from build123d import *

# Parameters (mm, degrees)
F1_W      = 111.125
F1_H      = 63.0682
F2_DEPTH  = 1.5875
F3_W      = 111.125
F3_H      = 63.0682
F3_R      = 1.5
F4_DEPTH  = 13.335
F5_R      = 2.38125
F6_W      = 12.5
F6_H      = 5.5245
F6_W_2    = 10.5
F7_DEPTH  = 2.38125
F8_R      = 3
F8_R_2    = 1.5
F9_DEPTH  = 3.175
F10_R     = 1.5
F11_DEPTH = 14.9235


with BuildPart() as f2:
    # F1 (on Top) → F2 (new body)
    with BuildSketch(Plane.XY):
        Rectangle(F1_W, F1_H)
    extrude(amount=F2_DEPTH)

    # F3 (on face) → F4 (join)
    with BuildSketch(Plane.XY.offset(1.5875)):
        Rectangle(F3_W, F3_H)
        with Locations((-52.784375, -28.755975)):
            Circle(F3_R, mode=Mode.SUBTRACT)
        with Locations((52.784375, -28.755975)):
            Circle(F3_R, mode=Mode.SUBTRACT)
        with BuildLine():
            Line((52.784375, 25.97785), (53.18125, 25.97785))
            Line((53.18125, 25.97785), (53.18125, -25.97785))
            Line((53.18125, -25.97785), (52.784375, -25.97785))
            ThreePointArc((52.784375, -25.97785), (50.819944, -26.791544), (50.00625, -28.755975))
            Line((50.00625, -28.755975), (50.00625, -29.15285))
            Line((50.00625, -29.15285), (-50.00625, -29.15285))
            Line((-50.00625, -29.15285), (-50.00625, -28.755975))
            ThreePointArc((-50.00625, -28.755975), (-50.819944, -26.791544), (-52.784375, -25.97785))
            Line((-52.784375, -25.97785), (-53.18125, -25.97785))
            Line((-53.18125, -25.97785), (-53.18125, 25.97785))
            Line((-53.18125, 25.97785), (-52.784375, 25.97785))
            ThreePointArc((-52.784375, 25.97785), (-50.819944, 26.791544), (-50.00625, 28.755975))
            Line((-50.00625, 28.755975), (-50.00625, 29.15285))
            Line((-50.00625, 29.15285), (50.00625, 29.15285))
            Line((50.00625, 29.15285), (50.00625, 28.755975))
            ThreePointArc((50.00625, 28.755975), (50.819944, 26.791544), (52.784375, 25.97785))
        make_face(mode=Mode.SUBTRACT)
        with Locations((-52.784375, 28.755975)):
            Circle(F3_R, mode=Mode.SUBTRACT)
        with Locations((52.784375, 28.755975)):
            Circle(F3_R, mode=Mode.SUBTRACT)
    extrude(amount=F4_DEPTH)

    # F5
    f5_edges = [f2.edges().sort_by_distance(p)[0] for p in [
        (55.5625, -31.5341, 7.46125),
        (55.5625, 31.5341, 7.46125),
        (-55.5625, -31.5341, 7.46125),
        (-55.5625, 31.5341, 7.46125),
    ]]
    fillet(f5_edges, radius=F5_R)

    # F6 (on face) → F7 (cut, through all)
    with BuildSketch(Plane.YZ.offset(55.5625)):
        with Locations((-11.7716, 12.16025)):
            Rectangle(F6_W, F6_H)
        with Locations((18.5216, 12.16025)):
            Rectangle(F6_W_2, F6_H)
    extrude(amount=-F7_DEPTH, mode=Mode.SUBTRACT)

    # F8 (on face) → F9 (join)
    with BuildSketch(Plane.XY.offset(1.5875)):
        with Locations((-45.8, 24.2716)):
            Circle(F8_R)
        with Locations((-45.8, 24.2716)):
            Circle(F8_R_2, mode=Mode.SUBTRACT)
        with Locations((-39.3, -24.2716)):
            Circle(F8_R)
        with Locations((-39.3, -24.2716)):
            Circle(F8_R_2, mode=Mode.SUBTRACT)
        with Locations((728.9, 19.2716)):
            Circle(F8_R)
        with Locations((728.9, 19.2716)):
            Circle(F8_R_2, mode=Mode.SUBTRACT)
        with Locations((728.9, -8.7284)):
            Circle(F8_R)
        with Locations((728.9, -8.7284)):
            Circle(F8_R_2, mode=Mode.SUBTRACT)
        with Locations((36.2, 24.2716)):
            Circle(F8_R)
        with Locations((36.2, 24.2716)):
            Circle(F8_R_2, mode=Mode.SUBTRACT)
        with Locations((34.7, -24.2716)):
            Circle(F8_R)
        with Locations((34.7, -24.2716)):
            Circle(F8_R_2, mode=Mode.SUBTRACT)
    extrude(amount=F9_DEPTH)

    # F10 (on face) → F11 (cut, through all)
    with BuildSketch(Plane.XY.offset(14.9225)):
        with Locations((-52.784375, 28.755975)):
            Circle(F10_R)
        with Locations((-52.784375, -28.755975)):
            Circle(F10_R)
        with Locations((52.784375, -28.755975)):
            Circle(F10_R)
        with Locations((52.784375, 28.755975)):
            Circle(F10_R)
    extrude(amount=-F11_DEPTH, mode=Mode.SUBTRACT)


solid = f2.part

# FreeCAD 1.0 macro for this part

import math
import FreeCAD as App
import Part
import Sketcher
from FreeCAD import Vector
Q = App.Units.Quantity


def edges_at(feature, points):
    """Names of the edges that pass closest to the given points."""
    edges = feature.Shape.Edges
    near = lambda p: min(range(len(edges)), key=lambda i: edges[i].distToShape(Part.Vertex(*p))[0])
    return sorted({f"Edge{near(p) + 1}" for p in points})

doc = App.newDocument("Part")
params = doc.addObject("Spreadsheet::Sheet", "Params")
for row, (alias, value) in enumerate([
    ("sketch1_width", "4.375 in"),
    ("sketch1_height", "2.483 in"),
    ("pad1_length", "0.0625 in"),
    ("sketch2_radius", "0.109375 in"),
    ("sketch2_width", "4.375 in"),
    ("sketch2_width2", "0.015625 in"),
    ("sketch2_width3", "3.9375 in"),
    ("sketch2_height", "2.483 in"),
    ("pad2_length", "0.525 in"),
    ("fillet_radius", "0.09375 in"),
    ("pocket1_length", "0.09375 in"),
    ("pad3_length", "0.125 in"),
], start=1):
    params.set(f"A{row}", alias)
    params.set(f"B{row}", "=" + value)
    params.setAlias(f"B{row}", alias)

body = doc.addObject("PartDesign::Body", "Body")
body.AllowCompound = True

sketch1 = body.newObject("Sketcher::SketchObject", "Sketch")
sketch1.AttachmentSupport = (doc.getObject("XY_Plane"), [""])
sketch1.MapMode = "FlatFace"
sketch1.addGeometry(Part.LineSegment(Vector(-56, 32, 0), Vector(-56, -32, 0)), False)
sketch1.addGeometry(Part.LineSegment(Vector(-56, -32, 0), Vector(56, -32, 0)), False)
sketch1.addGeometry(Part.LineSegment(Vector(56, -32, 0), Vector(56, 32, 0)), False)
sketch1.addGeometry(Part.LineSegment(Vector(56, 32, 0), Vector(-56, 32, 0)), False)
sketch1.addConstraint(Sketcher.Constraint("Coincident", 0, 2, 1, 1))
sketch1.addConstraint(Sketcher.Constraint("Coincident", 1, 2, 2, 1))
sketch1.addConstraint(Sketcher.Constraint("Coincident", 2, 2, 3, 1))
sketch1.addConstraint(Sketcher.Constraint("Coincident", 3, 2, 0, 1))
sketch1.addConstraint(Sketcher.Constraint("Vertical", 0))
sketch1.addConstraint(Sketcher.Constraint("Horizontal", 1))
sketch1.addConstraint(Sketcher.Constraint("Vertical", 2))
sketch1.addConstraint(Sketcher.Constraint("Horizontal", 3))
sketch1.addConstraint(Sketcher.Constraint("Symmetric", 0, 2, 2, 2, -1, 1))
sketch1.addConstraint(Sketcher.Constraint("DistanceX", 1, 1, 1, 2, Q("4.375 in")))
sketch1.addConstraint(Sketcher.Constraint("DistanceY", 0, 2, 0, 1, Q("2.483 in")))
sketch1.setExpression("Constraints[9]", "Params.sketch1_width")
sketch1.setExpression("Constraints[10]", "Params.sketch1_height")
pad1 = body.newObject("PartDesign::Pad", "Pad")
pad1.Profile = sketch1
pad1.setExpression("Length", "Params.pad1_length")

sketch2 = body.newObject("Sketcher::SketchObject", "Sketch001")
sketch2.AttachmentSupport = (doc.getObject("XY_Plane"), [""])
sketch2.MapMode = "FlatFace"
sketch2.AttachmentOffset = App.Placement(Vector(0, 0, 0.0625 * 25.4), App.Rotation())
sketch2.addGeometry(Part.LineSegment(Vector(-55.56, 31.53, 0), Vector(-55.56, -31.53, 0)), False)
sketch2.addGeometry(Part.LineSegment(Vector(-55.56, -31.53, 0), Vector(55.56, -31.53, 0)), False)
sketch2.addGeometry(Part.LineSegment(Vector(55.56, -31.53, 0), Vector(55.56, 31.53, 0)), False)
sketch2.addGeometry(Part.LineSegment(Vector(55.56, 31.53, 0), Vector(-55.56, 31.53, 0)), False)
sketch2.addGeometry(Part.Circle(Vector(-52.78, -28.76, 0), Vector(0, 0, 1), 1.5), False)
sketch2.addGeometry(Part.Circle(Vector(52.78, -28.76, 0), Vector(0, 0, 1), 1.5), False)
sketch2.addGeometry(Part.Circle(Vector(-52.78, 28.76, 0), Vector(0, 0, 1), 1.5), False)
sketch2.addGeometry(Part.ArcOfCircle(Part.Circle(Vector(52.78, 28.76, 0), Vector(0, 0, 1), 2.78), math.radians(-180), math.radians(-90)), False)
sketch2.addGeometry(Part.LineSegment(Vector(52.78, 25.98, 0), Vector(53.18, 25.98, 0)), False)
sketch2.addGeometry(Part.LineSegment(Vector(53.18, 25.98, 0), Vector(53.18, -25.98, 0)), False)
sketch2.addGeometry(Part.LineSegment(Vector(53.18, -25.98, 0), Vector(52.78, -25.98, 0)), False)
sketch2.addGeometry(Part.ArcOfCircle(Part.Circle(Vector(52.78, -28.76, 0), Vector(0, 0, 1), 2.78), math.radians(90), math.radians(180)), False)
sketch2.addGeometry(Part.LineSegment(Vector(50.01, -28.76, 0), Vector(50.01, -29.15, 0)), False)
sketch2.addGeometry(Part.LineSegment(Vector(50.01, -29.15, 0), Vector(-50.01, -29.15, 0)), False)
sketch2.addGeometry(Part.LineSegment(Vector(-50.01, -29.15, 0), Vector(-50.01, -28.76, 0)), False)
sketch2.addGeometry(Part.ArcOfCircle(Part.Circle(Vector(-52.78, -28.76, 0), Vector(0, 0, 1), 2.78), math.radians(0), math.radians(90)), False)
sketch2.addGeometry(Part.LineSegment(Vector(-52.78, -25.98, 0), Vector(-53.18, -25.98, 0)), False)
sketch2.addGeometry(Part.LineSegment(Vector(-53.18, -25.98, 0), Vector(-53.18, 25.98, 0)), False)
sketch2.addGeometry(Part.LineSegment(Vector(-53.18, 25.98, 0), Vector(-52.78, 25.98, 0)), False)
sketch2.addGeometry(Part.ArcOfCircle(Part.Circle(Vector(-52.78, 28.76, 0), Vector(0, 0, 1), 2.78), math.radians(-90), math.radians(0)), False)
sketch2.addGeometry(Part.LineSegment(Vector(-50.01, 28.76, 0), Vector(-50.01, 29.15, 0)), False)
sketch2.addGeometry(Part.LineSegment(Vector(-50.01, 29.15, 0), Vector(50.01, 29.15, 0)), False)
sketch2.addGeometry(Part.LineSegment(Vector(50.01, 29.15, 0), Vector(50.01, 28.76, 0)), False)
sketch2.addGeometry(Part.Circle(Vector(52.78, 28.76, 0), Vector(0, 0, 1), 1.5), False)
sketch2.addConstraint(Sketcher.Constraint("Coincident", 0, 2, 1, 1))
sketch2.addConstraint(Sketcher.Constraint("Coincident", 1, 2, 2, 1))
sketch2.addConstraint(Sketcher.Constraint("Coincident", 2, 2, 3, 1))
sketch2.addConstraint(Sketcher.Constraint("Coincident", 3, 2, 0, 1))
sketch2.addConstraint(Sketcher.Constraint("Tangent", 7, 2, 8, 1))
sketch2.addConstraint(Sketcher.Constraint("Coincident", 8, 2, 9, 1))
sketch2.addConstraint(Sketcher.Constraint("Coincident", 9, 2, 10, 1))
sketch2.addConstraint(Sketcher.Constraint("Tangent", 10, 2, 11, 1))
sketch2.addConstraint(Sketcher.Constraint("Tangent", 11, 2, 12, 1))
sketch2.addConstraint(Sketcher.Constraint("Coincident", 12, 2, 13, 1))
sketch2.addConstraint(Sketcher.Constraint("Coincident", 13, 2, 14, 1))
sketch2.addConstraint(Sketcher.Constraint("Tangent", 14, 2, 15, 1))
sketch2.addConstraint(Sketcher.Constraint("Tangent", 15, 2, 16, 1))
sketch2.addConstraint(Sketcher.Constraint("Coincident", 16, 2, 17, 1))
sketch2.addConstraint(Sketcher.Constraint("Coincident", 17, 2, 18, 1))
sketch2.addConstraint(Sketcher.Constraint("Tangent", 18, 2, 19, 1))
sketch2.addConstraint(Sketcher.Constraint("Tangent", 19, 2, 20, 1))
sketch2.addConstraint(Sketcher.Constraint("Coincident", 20, 2, 21, 1))
sketch2.addConstraint(Sketcher.Constraint("Coincident", 21, 2, 22, 1))
sketch2.addConstraint(Sketcher.Constraint("Tangent", 22, 2, 7, 1))
sketch2.addConstraint(Sketcher.Constraint("Vertical", 0))
sketch2.addConstraint(Sketcher.Constraint("Horizontal", 1))
sketch2.addConstraint(Sketcher.Constraint("Vertical", 2))
sketch2.addConstraint(Sketcher.Constraint("Horizontal", 3))
sketch2.addConstraint(Sketcher.Constraint("Horizontal", 8))
sketch2.addConstraint(Sketcher.Constraint("Vertical", 9))
sketch2.addConstraint(Sketcher.Constraint("Horizontal", 10))
sketch2.addConstraint(Sketcher.Constraint("Vertical", 12))
sketch2.addConstraint(Sketcher.Constraint("Horizontal", 13))
sketch2.addConstraint(Sketcher.Constraint("Vertical", 14))
sketch2.addConstraint(Sketcher.Constraint("Horizontal", 16))
sketch2.addConstraint(Sketcher.Constraint("Vertical", 17))
sketch2.addConstraint(Sketcher.Constraint("Horizontal", 18))
sketch2.addConstraint(Sketcher.Constraint("Vertical", 20))
sketch2.addConstraint(Sketcher.Constraint("Horizontal", 21))
sketch2.addConstraint(Sketcher.Constraint("Vertical", 22))
sketch2.addConstraint(Sketcher.Constraint("Coincident", 11, 3, 5, 3))
sketch2.addConstraint(Sketcher.Constraint("Coincident", 15, 3, 4, 3))
sketch2.addConstraint(Sketcher.Constraint("Coincident", 19, 3, 6, 3))
sketch2.addConstraint(Sketcher.Constraint("Coincident", 23, 3, 7, 3))
sketch2.addConstraint(Sketcher.Constraint("Equal", 4, 5))
sketch2.addConstraint(Sketcher.Constraint("Equal", 5, 6))
sketch2.addConstraint(Sketcher.Constraint("Equal", 7, 11))
sketch2.addConstraint(Sketcher.Constraint("Equal", 11, 15))
sketch2.addConstraint(Sketcher.Constraint("Equal", 15, 19))
sketch2.addConstraint(Sketcher.Constraint("Equal", 6, 23))
sketch2.addConstraint(Sketcher.Constraint("Symmetric", 5, 3, 6, 3, -1, 1))
sketch2.addConstraint(Sketcher.Constraint("Symmetric", 4, 3, 7, 3, -1, 1))
sketch2.addConstraint(Sketcher.Constraint("Symmetric", 0, 2, 2, 2, -1, 1))
sketch2.addConstraint(Sketcher.Constraint("Symmetric", 4, 3, 5, 3, -2))
sketch2.addConstraint(Sketcher.Constraint("Equal", 10, 16))
sketch2.addConstraint(Sketcher.Constraint("Equal", 18, 12))
sketch2.addConstraint(Sketcher.Constraint("Equal", 14, 20))
sketch2.addConstraint(Sketcher.Constraint("Radius", 7, Q("0.109375 in")))
sketch2.addConstraint(Sketcher.Constraint("Diameter", 4, 3.0))
sketch2.addConstraint(Sketcher.Constraint("DistanceX", 1, 1, 1, 2, Q("4.375 in")))
sketch2.addConstraint(Sketcher.Constraint("DistanceX", 8, 1, 8, 2, Q("0.015625 in")))
sketch2.addConstraint(Sketcher.Constraint("DistanceX", 13, 2, 13, 1, Q("3.9375 in")))
sketch2.addConstraint(Sketcher.Constraint("DistanceY", 0, 2, 0, 1, Q("2.483 in")))
sketch2.addConstraint(Sketcher.Constraint("DistanceY", 9, 2, 9, 1, Q("2.0455 in")))
sketch2.setExpression("Constraints[53]", "Params.sketch2_radius")
sketch2.setExpression("Constraints[55]", "Params.sketch2_width")
sketch2.setExpression("Constraints[56]", "Params.sketch2_width2")
sketch2.setExpression("Constraints[57]", "Params.sketch2_width3")
sketch2.setExpression("Constraints[58]", "Params.sketch2_height")
pad2 = body.newObject("PartDesign::Pad", "Pad001")
pad2.Profile = sketch2
pad2.setExpression("Length", "Params.pad2_length")
doc.recompute()

fillet = body.newObject("PartDesign::Fillet", "Fillet")
fillet.Base = (pad2, edges_at(pad2, [
    (55.562, -31.534, 7.461),
    (55.562, 31.534, 7.461),
    (-55.562, -31.534, 7.461),
    (-55.562, 31.534, 7.461),
]))
fillet.setExpression("Radius", "Params.fillet_radius")

sketch3 = body.newObject("Sketcher::SketchObject", "Sketch002")
sketch3.AttachmentSupport = (doc.getObject("YZ_Plane"), [""])
sketch3.MapMode = "FlatFace"
sketch3.AttachmentOffset = App.Placement(Vector(0, 0, 2.1875 * 25.4), App.Rotation())
sketch3.addGeometry(Part.LineSegment(Vector(-18, 15, 0), Vector(-18, 9, 0)), False)
sketch3.addGeometry(Part.LineSegment(Vector(-18, 9, 0), Vector(-6, 9, 0)), False)
sketch3.addGeometry(Part.LineSegment(Vector(-6, 9, 0), Vector(-6, 15, 0)), False)
sketch3.addGeometry(Part.LineSegment(Vector(-6, 15, 0), Vector(-18, 15, 0)), False)
sketch3.addGeometry(Part.LineSegment(Vector(13, 15, 0), Vector(13, 9, 0)), False)
sketch3.addGeometry(Part.LineSegment(Vector(13, 9, 0), Vector(24, 9, 0)), False)
sketch3.addGeometry(Part.LineSegment(Vector(24, 9, 0), Vector(24, 15, 0)), False)
sketch3.addGeometry(Part.LineSegment(Vector(24, 15, 0), Vector(13, 15, 0)), False)
sketch3.addConstraint(Sketcher.Constraint("Coincident", 0, 2, 1, 1))
sketch3.addConstraint(Sketcher.Constraint("Coincident", 1, 2, 2, 1))
sketch3.addConstraint(Sketcher.Constraint("Coincident", 2, 2, 3, 1))
sketch3.addConstraint(Sketcher.Constraint("Coincident", 3, 2, 0, 1))
sketch3.addConstraint(Sketcher.Constraint("Coincident", 4, 2, 5, 1))
sketch3.addConstraint(Sketcher.Constraint("Coincident", 5, 2, 6, 1))
sketch3.addConstraint(Sketcher.Constraint("Coincident", 6, 2, 7, 1))
sketch3.addConstraint(Sketcher.Constraint("Coincident", 7, 2, 4, 1))
sketch3.addConstraint(Sketcher.Constraint("Vertical", 0))
sketch3.addConstraint(Sketcher.Constraint("Horizontal", 1))
sketch3.addConstraint(Sketcher.Constraint("Vertical", 2))
sketch3.addConstraint(Sketcher.Constraint("Horizontal", 3))
sketch3.addConstraint(Sketcher.Constraint("Vertical", 4))
sketch3.addConstraint(Sketcher.Constraint("Horizontal", 5))
sketch3.addConstraint(Sketcher.Constraint("Vertical", 6))
sketch3.addConstraint(Sketcher.Constraint("Horizontal", 7))
sketch3.addConstraint(Sketcher.Constraint("Horizontal", 1, 2, 4, 2))
sketch3.addConstraint(Sketcher.Constraint("Horizontal", 3, 2, 6, 2))
sketch3.addConstraint(Sketcher.Constraint("DistanceY", -1, 1, 0, 2, Q("0.37 in")))
sketch3.addConstraint(Sketcher.Constraint("DistanceY", 0, 2, 0, 1, Q("0.2175 in")))
sketch3.addConstraint(Sketcher.Constraint("DistanceX", 1, 1, 1, 2, 12.5))
sketch3.addConstraint(Sketcher.Constraint("DistanceX", 5, 1, 5, 2, 10.5))
sketch3.addConstraint(Sketcher.Constraint("DistanceX", 0, 2, -1, 1, 18.0216))
sketch3.addConstraint(Sketcher.Constraint("DistanceX", -1, 1, 4, 2, 13.2716))
pocket1 = body.newObject("PartDesign::Pocket", "Pocket")
pocket1.Profile = sketch3
pocket1.setExpression("Length", "Params.pocket1_length")

sketch4 = body.newObject("Sketcher::SketchObject", "Sketch003")
sketch4.AttachmentSupport = (doc.getObject("XY_Plane"), [""])
sketch4.MapMode = "FlatFace"
sketch4.AttachmentOffset = App.Placement(Vector(0, 0, 0.0625 * 25.4), App.Rotation())
sketch4.addGeometry(Part.Circle(Vector(-45.8, 24.3, 0), Vector(0, 0, 1), 3), False)
sketch4.addGeometry(Part.Circle(Vector(-45.8, 24.3, 0), Vector(0, 0, 1), 1.5), False)
sketch4.addGeometry(Part.Circle(Vector(-39.3, -24.3, 0), Vector(0, 0, 1), 3), False)
sketch4.addGeometry(Part.Circle(Vector(-39.3, -24.3, 0), Vector(0, 0, 1), 1.5), False)
sketch4.addGeometry(Part.Circle(Vector(728.9, 19.3, 0), Vector(0, 0, 1), 3), False)
sketch4.addGeometry(Part.Circle(Vector(728.9, 19.3, 0), Vector(0, 0, 1), 1.5), False)
sketch4.addGeometry(Part.Circle(Vector(728.9, -8.7, 0), Vector(0, 0, 1), 3), False)
sketch4.addGeometry(Part.Circle(Vector(728.9, -8.7, 0), Vector(0, 0, 1), 1.5), False)
sketch4.addGeometry(Part.Circle(Vector(36.2, 24.3, 0), Vector(0, 0, 1), 3), False)
sketch4.addGeometry(Part.Circle(Vector(36.2, 24.3, 0), Vector(0, 0, 1), 1.5), False)
sketch4.addGeometry(Part.Circle(Vector(34.7, -24.3, 0), Vector(0, 0, 1), 3), False)
sketch4.addGeometry(Part.Circle(Vector(34.7, -24.3, 0), Vector(0, 0, 1), 1.5), False)
sketch4.addConstraint(Sketcher.Constraint("Coincident", 1, 3, 0, 3))
sketch4.addConstraint(Sketcher.Constraint("Coincident", 3, 3, 2, 3))
sketch4.addConstraint(Sketcher.Constraint("Coincident", 5, 3, 4, 3))
sketch4.addConstraint(Sketcher.Constraint("Coincident", 7, 3, 6, 3))
sketch4.addConstraint(Sketcher.Constraint("Coincident", 9, 3, 8, 3))
sketch4.addConstraint(Sketcher.Constraint("Coincident", 11, 3, 10, 3))
sketch4.addConstraint(Sketcher.Constraint("Equal", 0, 2))
sketch4.addConstraint(Sketcher.Constraint("Equal", 1, 3))
sketch4.addConstraint(Sketcher.Constraint("Equal", 2, 4))
sketch4.addConstraint(Sketcher.Constraint("Equal", 3, 5))
sketch4.addConstraint(Sketcher.Constraint("Equal", 4, 6))
sketch4.addConstraint(Sketcher.Constraint("Equal", 5, 7))
sketch4.addConstraint(Sketcher.Constraint("Equal", 6, 8))
sketch4.addConstraint(Sketcher.Constraint("Equal", 7, 9))
sketch4.addConstraint(Sketcher.Constraint("Equal", 8, 10))
sketch4.addConstraint(Sketcher.Constraint("Equal", 9, 11))
sketch4.addConstraint(Sketcher.Constraint("Horizontal", 1, 3, 8, 3))
sketch4.addConstraint(Sketcher.Constraint("Horizontal", 3, 3, 10, 3))
sketch4.addConstraint(Sketcher.Constraint("Vertical", 5, 3, 6, 3))
sketch4.addConstraint(Sketcher.Constraint("DistanceX", 0, 3, 4, 3, Q("30.5 in")))
sketch4.addConstraint(Sketcher.Constraint("Diameter", 0, 6.0))
sketch4.addConstraint(Sketcher.Constraint("Diameter", 1, 3.0))
sketch4.addConstraint(Sketcher.Constraint("DistanceX", 0, 3, -1, 1, 45.8))
sketch4.addConstraint(Sketcher.Constraint("DistanceY", -1, 1, 0, 3, 24.2716))
sketch4.addConstraint(Sketcher.Constraint("DistanceX", 2, 3, -1, 1, 39.3))
sketch4.addConstraint(Sketcher.Constraint("DistanceY", 2, 3, -1, 1, 24.2716))
sketch4.addConstraint(Sketcher.Constraint("DistanceY", -1, 1, 4, 3, 19.2716))
sketch4.addConstraint(Sketcher.Constraint("DistanceY", 6, 3, -1, 1, 8.7284))
sketch4.addConstraint(Sketcher.Constraint("DistanceX", -1, 1, 8, 3, 36.2))
sketch4.addConstraint(Sketcher.Constraint("DistanceX", -1, 1, 10, 3, 34.7))
pad3 = body.newObject("PartDesign::Pad", "Pad002")
pad3.Profile = sketch4
pad3.setExpression("Length", "Params.pad3_length")

sketch5 = body.newObject("Sketcher::SketchObject", "Sketch004")
sketch5.AttachmentSupport = (doc.getObject("XY_Plane"), [""])
sketch5.MapMode = "FlatFace"
sketch5.AttachmentOffset = App.Placement(Vector(0, 0, 0.5875 * 25.4), App.Rotation())
sketch5.addGeometry(Part.Circle(Vector(-52.8, 28.8, 0), Vector(0, 0, 1), 1.5), False)
sketch5.addGeometry(Part.Circle(Vector(-52.8, -28.8, 0), Vector(0, 0, 1), 1.5), False)
sketch5.addGeometry(Part.Circle(Vector(52.8, -28.8, 0), Vector(0, 0, 1), 1.5), False)
sketch5.addGeometry(Part.Circle(Vector(52.8, 28.8, 0), Vector(0, 0, 1), 1.5), False)
sketch5.addConstraint(Sketcher.Constraint("Equal", 0, 1))
sketch5.addConstraint(Sketcher.Constraint("Equal", 1, 2))
sketch5.addConstraint(Sketcher.Constraint("Equal", 2, 3))
sketch5.addConstraint(Sketcher.Constraint("Symmetric", 0, 3, 2, 3, -1, 1))
sketch5.addConstraint(Sketcher.Constraint("Symmetric", 1, 3, 3, 3, -1, 1))
sketch5.addConstraint(Sketcher.Constraint("Symmetric", 1, 3, 2, 3, -2))
sketch5.addConstraint(Sketcher.Constraint("Diameter", 0, 3.0))
sketch5.addConstraint(Sketcher.Constraint("DistanceX", 0, 3, -1, 1, Q("2.078125 in")))
sketch5.addConstraint(Sketcher.Constraint("DistanceY", 1, 3, 0, 3, 57.51195))
pocket2 = body.newObject("PartDesign::Pocket", "Pocket001")
pocket2.Profile = sketch5
pocket2.Type = "ThroughAll"

doc.recompute()
